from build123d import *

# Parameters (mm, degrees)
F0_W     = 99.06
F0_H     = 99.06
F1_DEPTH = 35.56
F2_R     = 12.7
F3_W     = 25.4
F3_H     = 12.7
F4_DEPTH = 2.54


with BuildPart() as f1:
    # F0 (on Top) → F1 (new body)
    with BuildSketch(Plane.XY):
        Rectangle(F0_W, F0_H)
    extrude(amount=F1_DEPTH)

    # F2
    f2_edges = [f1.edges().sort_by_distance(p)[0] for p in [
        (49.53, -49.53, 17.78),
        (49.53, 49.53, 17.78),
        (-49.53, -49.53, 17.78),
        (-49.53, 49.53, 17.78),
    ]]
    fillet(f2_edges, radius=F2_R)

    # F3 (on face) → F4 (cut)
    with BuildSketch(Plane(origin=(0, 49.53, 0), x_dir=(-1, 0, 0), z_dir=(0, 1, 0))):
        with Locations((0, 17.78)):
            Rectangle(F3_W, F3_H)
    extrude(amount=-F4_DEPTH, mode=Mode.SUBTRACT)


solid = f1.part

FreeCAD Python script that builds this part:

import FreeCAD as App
import Part
import Sketcher
from FreeCAD import Vector
Q = App.Units.Quantity


def edges_at(feature, points):
    """Names of the edges that pass closest to the given points."""
    edges = feature.Shape.Edges
    near = lambda p: min(range(len(edges)), key=lambda i: edges[i].distToShape(Part.Vertex(*p))[0])
    return sorted({f"Edge{near(p) + 1}" for p in points})

doc = App.newDocument("Part")
body = doc.addObject("PartDesign::Body", "Body")

# Sketch on XY plane
sketch1 = body.newObject("Sketcher::SketchObject", "Sketch")
sketch1.AttachmentSupport = (doc.getObject("XY_Plane"), [""])
sketch1.MapMode = "FlatFace"
sketch1.addGeometry([
    Part.LineSegment(Vector(-50, 50, 0), Vector(-50, -50, 0)),
    Part.LineSegment(Vector(-50, -50, 0), Vector(50, -50, 0)),
    Part.LineSegment(Vector(50, -50, 0), Vector(50, 50, 0)),
    Part.LineSegment(Vector(50, 50, 0), Vector(-50, 50, 0)),
], False)
sketch1.addConstraint([
    Sketcher.Constraint("Coincident", 0, 2, 1, 1),
    Sketcher.Constraint("Coincident", 1, 2, 2, 1),
    Sketcher.Constraint("Coincident", 2, 2, 3, 1),
    Sketcher.Constraint("Coincident", 3, 2, 0, 1),
    Sketcher.Constraint("Vertical", 0),
    Sketcher.Constraint("Horizontal", 1),
    Sketcher.Constraint("Vertical", 2),
    Sketcher.Constraint("Horizontal", 3),
    Sketcher.Constraint("Symmetric", 0, 2, 2, 2, -1, 1),
    Sketcher.Constraint("Equal", 3, 0),
    Sketcher.Constraint("DistanceX", 1, 1, 1, 2, Q("3.9 in")),
])
pad1 = body.newObject("PartDesign::Pad", "Pad")
pad1.Profile = sketch1
pad1.Length = Q("1.4 in")
doc.recompute()

fillet = body.newObject("PartDesign::Fillet", "Fillet")
fillet.Base = (pad1, edges_at(pad1, [
    (49.53, -49.53, 17.78),
    (49.53, 49.53, 17.78),
    (-49.53, -49.53, 17.78),
    (-49.53, 49.53, 17.78),
]))
fillet.Radius = Q("0.5 in")

# Sketch on XZ plane
sketch2 = body.newObject("Sketcher::SketchObject", "Sketch001")
sketch2.AttachmentSupport = (doc.getObject("XZ_Plane"), [""])
sketch2.MapMode = "FlatFace"
sketch2.AttachmentOffset = App.Placement(Vector(0, 0, -1.95 * 25.4), App.Rotation())
sketch2.addGeometry([
    Part.LineSegment(Vector(13, 24, 0), Vector(13, 11, 0)),
    Part.LineSegment(Vector(13, 11, 0), Vector(-13, 11, 0)),
    Part.LineSegment(Vector(-13, 11, 0), Vector(-13, 24, 0)),
    Part.LineSegment(Vector(-13, 24, 0), Vector(13, 24, 0)),
], False)
sketch2.addConstraint([
    Sketcher.Constraint("Coincident", 0, 2, 1, 1),
    Sketcher.Constraint("Coincident", 1, 2, 2, 1),
    Sketcher.Constraint("Coincident", 2, 2, 3, 1),
    Sketcher.Constraint("Coincident", 3, 2, 0, 1),
    Sketcher.Constraint("Vertical", 0),
    Sketcher.Constraint("Horizontal", 1),
    Sketcher.Constraint("Vertical", 2),
    Sketcher.Constraint("Horizontal", 3),
    Sketcher.Constraint("DistanceX", 1, 2, 1, 1, Q("1 in")),
    Sketcher.Constraint("DistanceY", 0, 2, 0, 1, Q("0.5 in")),
    Sketcher.Constraint("DistanceX", -1, 1, 0, 2, Q("0.5 in")),
    Sketcher.Constraint("DistanceY", -1, 1, 0, 2, Q("0.45 in")),
])
pocket1 = body.newObject("PartDesign::Pocket", "Pocket")
pocket1.Profile = sketch2
pocket1.Length = Q("0.1 in")
pocket1.Reversed = True

doc.recompute()
